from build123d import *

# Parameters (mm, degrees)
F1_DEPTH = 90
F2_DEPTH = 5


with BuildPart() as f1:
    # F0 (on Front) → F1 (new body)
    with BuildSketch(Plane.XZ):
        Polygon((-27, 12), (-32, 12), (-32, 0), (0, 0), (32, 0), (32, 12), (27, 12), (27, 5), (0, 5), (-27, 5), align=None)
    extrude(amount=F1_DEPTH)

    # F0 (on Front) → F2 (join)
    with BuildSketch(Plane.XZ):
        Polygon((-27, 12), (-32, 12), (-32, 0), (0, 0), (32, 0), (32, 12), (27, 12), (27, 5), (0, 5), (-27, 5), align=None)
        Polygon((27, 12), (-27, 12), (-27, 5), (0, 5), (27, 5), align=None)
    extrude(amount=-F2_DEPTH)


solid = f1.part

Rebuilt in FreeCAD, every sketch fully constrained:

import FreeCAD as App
import Part
import Sketcher
from FreeCAD import Vector
Q = App.Units.Quantity

doc = App.newDocument("Part")
body = doc.addObject("PartDesign::Body", "Body")

sketch1 = body.newObject("Sketcher::SketchObject", "Sketch")
sketch1.AttachmentSupport = (doc.getObject("XZ_Plane"), [""])
sketch1.MapMode = "FlatFace"
sketch1.addGeometry(Part.LineSegment(Vector(-27, 12, 0), Vector(-32, 12, 0)), False)
sketch1.addGeometry(Part.LineSegment(Vector(-32, 12, 0), Vector(-32, 0, 0)), False)
sketch1.addGeometry(Part.LineSegment(Vector(-32, 0, 0), Vector(32, 0, 0)), False)
sketch1.addGeometry(Part.LineSegment(Vector(32, 0, 0), Vector(32, 12, 0)), False)
sketch1.addGeometry(Part.LineSegment(Vector(32, 12, 0), Vector(27, 12, 0)), False)
sketch1.addGeometry(Part.LineSegment(Vector(27, 12, 0), Vector(27, 5, 0)), False)
sketch1.addGeometry(Part.LineSegment(Vector(27, 5, 0), Vector(-27, 5, 0)), False)
sketch1.addGeometry(Part.LineSegment(Vector(-27, 5, 0), Vector(-27, 12, 0)), False)
sketch1.addConstraint(Sketcher.Constraint("Coincident", 0, 2, 1, 1))
sketch1.addConstraint(Sketcher.Constraint("Coincident", 1, 2, 2, 1))
sketch1.addConstraint(Sketcher.Constraint("Coincident", 2, 2, 3, 1))
sketch1.addConstraint(Sketcher.Constraint("Coincident", 3, 2, 4, 1))
sketch1.addConstraint(Sketcher.Constraint("Coincident", 4, 2, 5, 1))
sketch1.addConstraint(Sketcher.Constraint("Coincident", 5, 2, 6, 1))
sketch1.addConstraint(Sketcher.Constraint("Coincident", 6, 2, 7, 1))
sketch1.addConstraint(Sketcher.Constraint("Coincident", 7, 2, 0, 1))
sketch1.addConstraint(Sketcher.Constraint("Horizontal", 0))
sketch1.addConstraint(Sketcher.Constraint("Vertical", 1))
sketch1.addConstraint(Sketcher.Constraint("Horizontal", 2))
sketch1.addConstraint(Sketcher.Constraint("Vertical", 3))
sketch1.addConstraint(Sketcher.Constraint("Horizontal", 4))
sketch1.addConstraint(Sketcher.Constraint("Vertical", 5))
sketch1.addConstraint(Sketcher.Constraint("Horizontal", 6))
sketch1.addConstraint(Sketcher.Constraint("Vertical", 7))
sketch1.addConstraint(Sketcher.Constraint("Symmetric", 1, 2, 2, 2, -1, 1))
sketch1.addConstraint(Sketcher.Constraint("Symmetric", 4, 2, 7, 2, -2))
sketch1.addConstraint(Sketcher.Constraint("DistanceX", 0, 2, 0, 1, Q("5 mm")))
sketch1.addConstraint(Sketcher.Constraint("DistanceX", 2, 1, 2, 2, Q("64 mm")))
sketch1.addConstraint(Sketcher.Constraint("DistanceY", 1, 2, 1, 1, Q("12 mm")))
sketch1.addConstraint(Sketcher.Constraint("DistanceY", 5, 2, 5, 1, Q("7 mm")))
pad1 = body.newObject("PartDesign::Pad", "Pad")
pad1.Profile = sketch1
pad1.Length = 90

sketch2 = body.newObject("Sketcher::SketchObject", "Sketch001")
sketch2.AttachmentSupport = (doc.getObject("XZ_Plane"), [""])
sketch2.MapMode = "FlatFace"
sketch2.addGeometry(Part.LineSegment(Vector(-32, 12, 0), Vector(-32, 0, 0)), False)
sketch2.addGeometry(Part.LineSegment(Vector(-32, 0, 0), Vector(32, 0, 0)), False)
sketch2.addGeometry(Part.LineSegment(Vector(32, 0, 0), Vector(32, 12, 0)), False)
sketch2.addGeometry(Part.LineSegment(Vector(32, 12, 0), Vector(-32, 12, 0)), False)
sketch2.addConstraint(Sketcher.Constraint("Coincident", 0, 2, 1, 1))
sketch2.addConstraint(Sketcher.Constraint("Coincident", 1, 2, 2, 1))
sketch2.addConstraint(Sketcher.Constraint("Coincident", 2, 2, 3, 1))
sketch2.addConstraint(Sketcher.Constraint("Coincident", 3, 2, 0, 1))
sketch2.addConstraint(Sketcher.Constraint("Vertical", 0))
sketch2.addConstraint(Sketcher.Constraint("Horizontal", 1))
sketch2.addConstraint(Sketcher.Constraint("Vertical", 2))
sketch2.addConstraint(Sketcher.Constraint("Horizontal", 3))
sketch2.addConstraint(Sketcher.Constraint("Symmetric", 0, 2, 1, 2, -1, 1))
sketch2.addConstraint(Sketcher.Constraint("DistanceX", 1, 1, 1, 2, Q("64 mm")))
sketch2.addConstraint(Sketcher.Constraint("DistanceY", 0, 2, 0, 1, Q("12 mm")))
pad2 = body.newObject("PartDesign::Pad", "Pad001")
pad2.Profile = sketch2
pad2.Length = 5
pad2.Reversed = True

doc.recompute()
